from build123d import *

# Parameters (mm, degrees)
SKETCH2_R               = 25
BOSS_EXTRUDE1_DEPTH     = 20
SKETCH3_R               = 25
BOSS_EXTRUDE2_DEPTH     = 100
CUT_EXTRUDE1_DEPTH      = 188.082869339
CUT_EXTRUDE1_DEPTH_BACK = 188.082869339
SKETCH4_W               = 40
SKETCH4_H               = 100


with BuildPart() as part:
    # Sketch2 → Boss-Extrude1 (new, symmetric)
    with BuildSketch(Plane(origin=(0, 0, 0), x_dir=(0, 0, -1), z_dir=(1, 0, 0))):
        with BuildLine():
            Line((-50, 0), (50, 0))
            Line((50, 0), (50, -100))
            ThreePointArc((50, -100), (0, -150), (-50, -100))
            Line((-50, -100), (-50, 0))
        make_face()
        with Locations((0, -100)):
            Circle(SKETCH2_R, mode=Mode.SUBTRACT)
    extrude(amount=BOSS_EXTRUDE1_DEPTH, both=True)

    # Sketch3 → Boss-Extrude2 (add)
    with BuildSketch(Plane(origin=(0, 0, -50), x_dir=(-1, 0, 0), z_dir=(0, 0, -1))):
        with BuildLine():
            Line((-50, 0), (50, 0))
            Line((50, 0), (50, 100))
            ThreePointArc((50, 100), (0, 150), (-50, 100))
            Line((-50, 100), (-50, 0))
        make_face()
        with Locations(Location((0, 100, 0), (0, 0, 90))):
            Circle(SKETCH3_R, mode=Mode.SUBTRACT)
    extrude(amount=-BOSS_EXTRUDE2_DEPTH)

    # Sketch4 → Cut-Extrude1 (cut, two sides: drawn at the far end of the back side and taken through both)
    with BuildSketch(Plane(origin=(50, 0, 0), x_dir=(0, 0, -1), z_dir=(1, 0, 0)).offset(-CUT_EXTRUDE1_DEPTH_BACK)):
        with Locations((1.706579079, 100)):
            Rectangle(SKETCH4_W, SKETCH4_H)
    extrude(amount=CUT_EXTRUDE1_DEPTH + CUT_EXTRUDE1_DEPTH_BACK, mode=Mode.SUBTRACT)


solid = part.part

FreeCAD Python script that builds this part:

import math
import FreeCAD as App
import Part
import Sketcher

V = App.Vector

doc = App.newDocument("Part")
params = doc.addObject("Spreadsheet::Sheet", "Params")
for row, (alias, value) in enumerate([
    ("sketch1_diameter", "50 mm"),
    ("sketch1_radius", "50 mm"),
    ("pad1_length", "40 mm"),
    ("sketch2_diameter", "50 mm"),
    ("sketch2_radius", "50 mm"),
    ("pad2_length", "100 mm"),
    ("sketch3_width", "100 mm"),
    ("sketch3_height", "40 mm"),
], start=1):
    params.set(f"A{row}", alias)
    params.set(f"B{row}", "=" + value)
    params.setAlias(f"B{row}", alias)

body = doc.addObject("PartDesign::Body", "Body")

# Sketch on YZ plane
sketch1 = body.newObject("Sketcher::SketchObject", "Sketch")
sketch1.AttachmentSupport = (doc.getObject("YZ_Plane"), [""])
sketch1.MapMode = "FlatFace"
sketch1.addGeometry(Part.LineSegment(V(0, -50, 0), V(0, 50, 0)), False)
sketch1.addGeometry(Part.LineSegment(V(0, 50, 0), V(-100, 50, 0)), False)
sketch1.addGeometry(Part.ArcOfCircle(Part.Circle(V(-100, 0, 0), V(0, 0, 1), 50), math.radians(90), math.radians(270)), False)
sketch1.addGeometry(Part.LineSegment(V(-100, -50, 0), V(0, -50, 0)), False)
sketch1.addGeometry(Part.Circle(V(-100, 0, 0), V(0, 0, 1), 25), False)
sketch1.addConstraint(Sketcher.Constraint("Coincident", 0, 2, 1, 1))
sketch1.addConstraint(Sketcher.Constraint("Tangent", 1, 2, 2, 1))
sketch1.addConstraint(Sketcher.Constraint("Tangent", 2, 2, 3, 1))
sketch1.addConstraint(Sketcher.Constraint("Coincident", 3, 2, 0, 1))
sketch1.addConstraint(Sketcher.Constraint("Vertical", 0))
sketch1.addConstraint(Sketcher.Constraint("Horizontal", 1))
sketch1.addConstraint(Sketcher.Constraint("Horizontal", 3))
sketch1.addConstraint(Sketcher.Constraint("Coincident", 4, 3, 2, 3))
sketch1.addConstraint(Sketcher.Constraint("Symmetric", 0, 2, 3, 2, -1, 1))
sketch1.addConstraint(Sketcher.Constraint("Equal", 3, 0))
sketch1.addConstraint(Sketcher.Constraint("Diameter", 4, 50.0))
sketch1.addConstraint(Sketcher.Constraint("Radius", 2, 50.0))
sketch1.setExpression("Constraints[10]", "Params.sketch1_diameter")
sketch1.setExpression("Constraints[11]", "Params.sketch1_radius")
pad1 = body.newObject("PartDesign::Pad", "Pad")
pad1.Profile = sketch1
pad1.setExpression("Length", "Params.pad1_length")
pad1.Midplane = True

# Sketch on XY plane
sketch2 = body.newObject("Sketcher::SketchObject", "Sketch001")
sketch2.AttachmentSupport = (doc.getObject("XY_Plane"), [""])
sketch2.MapMode = "FlatFace"
sketch2.AttachmentOffset = App.Placement(V(0, 0, -50), App.Rotation())
sketch2.addGeometry(Part.LineSegment(V(50, 0, 0), V(-50, 0, 0)), False)
sketch2.addGeometry(Part.LineSegment(V(-50, 0, 0), V(-50, 100, 0)), False)
sketch2.addGeometry(Part.ArcOfCircle(Part.Circle(V(0, 100, 0), V(0, 0, 1), 50), math.radians(0), math.radians(180)), False)
sketch2.addGeometry(Part.LineSegment(V(50, 100, 0), V(50, 0, 0)), False)
sketch2.addGeometry(Part.Circle(V(0, 100, 0), V(0, 0, 1), 25), False)
sketch2.addConstraint(Sketcher.Constraint("Coincident", 0, 2, 1, 1))
sketch2.addConstraint(Sketcher.Constraint("Tangent", 1, 2, 2, 2))
sketch2.addConstraint(Sketcher.Constraint("Tangent", 2, 1, 3, 1))
sketch2.addConstraint(Sketcher.Constraint("Coincident", 3, 2, 0, 1))
sketch2.addConstraint(Sketcher.Constraint("Horizontal", 0))
sketch2.addConstraint(Sketcher.Constraint("Vertical", 1))
sketch2.addConstraint(Sketcher.Constraint("Vertical", 3))
sketch2.addConstraint(Sketcher.Constraint("Coincident", 4, 3, 2, 3))
sketch2.addConstraint(Sketcher.Constraint("Symmetric", 0, 2, 3, 2, -1, 1))
sketch2.addConstraint(Sketcher.Constraint("Equal", 0, 1))
sketch2.addConstraint(Sketcher.Constraint("Diameter", 4, 50.0))
sketch2.addConstraint(Sketcher.Constraint("Radius", 2, 50.0))
sketch2.setExpression("Constraints[10]", "Params.sketch2_diameter")
sketch2.setExpression("Constraints[11]", "Params.sketch2_radius")
pad2 = body.newObject("PartDesign::Pad", "Pad001")
pad2.Profile = sketch2
pad2.setExpression("Length", "Params.pad2_length")

# Sketch on YZ plane
sketch3 = body.newObject("Sketcher::SketchObject", "Sketch002")
sketch3.AttachmentSupport = (doc.getObject("YZ_Plane"), [""])
sketch3.MapMode = "FlatFace"
sketch3.AttachmentOffset = App.Placement(V(0, 0, 50), App.Rotation())
sketch3.addGeometry(Part.LineSegment(V(150, 18, 0), V(50, 18, 0)), False)
sketch3.addGeometry(Part.LineSegment(V(50, 18, 0), V(50, -22, 0)), False)
sketch3.addGeometry(Part.LineSegment(V(50, -22, 0), V(150, -22, 0)), False)
sketch3.addGeometry(Part.LineSegment(V(150, -22, 0), V(150, 18, 0)), False)
sketch3.addConstraint(Sketcher.Constraint("Coincident", 0, 2, 1, 1))
sketch3.addConstraint(Sketcher.Constraint("Coincident", 1, 2, 2, 1))
sketch3.addConstraint(Sketcher.Constraint("Coincident", 2, 2, 3, 1))
sketch3.addConstraint(Sketcher.Constraint("Coincident", 3, 2, 0, 1))
sketch3.addConstraint(Sketcher.Constraint("Horizontal", 0))
sketch3.addConstraint(Sketcher.Constraint("Vertical", 1))
sketch3.addConstraint(Sketcher.Constraint("Horizontal", 2))
sketch3.addConstraint(Sketcher.Constraint("Vertical", 3))
sketch3.addConstraint(Sketcher.Constraint("DistanceX", 0, 2, 0, 1, 100.0))
sketch3.addConstraint(Sketcher.Constraint("DistanceY", 1, 2, 1, 1, 40.0))
sketch3.addConstraint(Sketcher.Constraint("DistanceX", -1, 1, 0, 2, 50.0))
sketch3.addConstraint(Sketcher.Constraint("DistanceY", -1, 1, 0, 2, 18.293421))
sketch3.setExpression("Constraints[8]", "Params.sketch3_width")
sketch3.setExpression("Constraints[9]", "Params.sketch3_height")
pocket1 = body.newObject("PartDesign::Pocket", "Pocket")
pocket1.Profile = sketch3
pocket1.Type = "ThroughAll"
pocket1.Midplane = True

doc.recompute()
